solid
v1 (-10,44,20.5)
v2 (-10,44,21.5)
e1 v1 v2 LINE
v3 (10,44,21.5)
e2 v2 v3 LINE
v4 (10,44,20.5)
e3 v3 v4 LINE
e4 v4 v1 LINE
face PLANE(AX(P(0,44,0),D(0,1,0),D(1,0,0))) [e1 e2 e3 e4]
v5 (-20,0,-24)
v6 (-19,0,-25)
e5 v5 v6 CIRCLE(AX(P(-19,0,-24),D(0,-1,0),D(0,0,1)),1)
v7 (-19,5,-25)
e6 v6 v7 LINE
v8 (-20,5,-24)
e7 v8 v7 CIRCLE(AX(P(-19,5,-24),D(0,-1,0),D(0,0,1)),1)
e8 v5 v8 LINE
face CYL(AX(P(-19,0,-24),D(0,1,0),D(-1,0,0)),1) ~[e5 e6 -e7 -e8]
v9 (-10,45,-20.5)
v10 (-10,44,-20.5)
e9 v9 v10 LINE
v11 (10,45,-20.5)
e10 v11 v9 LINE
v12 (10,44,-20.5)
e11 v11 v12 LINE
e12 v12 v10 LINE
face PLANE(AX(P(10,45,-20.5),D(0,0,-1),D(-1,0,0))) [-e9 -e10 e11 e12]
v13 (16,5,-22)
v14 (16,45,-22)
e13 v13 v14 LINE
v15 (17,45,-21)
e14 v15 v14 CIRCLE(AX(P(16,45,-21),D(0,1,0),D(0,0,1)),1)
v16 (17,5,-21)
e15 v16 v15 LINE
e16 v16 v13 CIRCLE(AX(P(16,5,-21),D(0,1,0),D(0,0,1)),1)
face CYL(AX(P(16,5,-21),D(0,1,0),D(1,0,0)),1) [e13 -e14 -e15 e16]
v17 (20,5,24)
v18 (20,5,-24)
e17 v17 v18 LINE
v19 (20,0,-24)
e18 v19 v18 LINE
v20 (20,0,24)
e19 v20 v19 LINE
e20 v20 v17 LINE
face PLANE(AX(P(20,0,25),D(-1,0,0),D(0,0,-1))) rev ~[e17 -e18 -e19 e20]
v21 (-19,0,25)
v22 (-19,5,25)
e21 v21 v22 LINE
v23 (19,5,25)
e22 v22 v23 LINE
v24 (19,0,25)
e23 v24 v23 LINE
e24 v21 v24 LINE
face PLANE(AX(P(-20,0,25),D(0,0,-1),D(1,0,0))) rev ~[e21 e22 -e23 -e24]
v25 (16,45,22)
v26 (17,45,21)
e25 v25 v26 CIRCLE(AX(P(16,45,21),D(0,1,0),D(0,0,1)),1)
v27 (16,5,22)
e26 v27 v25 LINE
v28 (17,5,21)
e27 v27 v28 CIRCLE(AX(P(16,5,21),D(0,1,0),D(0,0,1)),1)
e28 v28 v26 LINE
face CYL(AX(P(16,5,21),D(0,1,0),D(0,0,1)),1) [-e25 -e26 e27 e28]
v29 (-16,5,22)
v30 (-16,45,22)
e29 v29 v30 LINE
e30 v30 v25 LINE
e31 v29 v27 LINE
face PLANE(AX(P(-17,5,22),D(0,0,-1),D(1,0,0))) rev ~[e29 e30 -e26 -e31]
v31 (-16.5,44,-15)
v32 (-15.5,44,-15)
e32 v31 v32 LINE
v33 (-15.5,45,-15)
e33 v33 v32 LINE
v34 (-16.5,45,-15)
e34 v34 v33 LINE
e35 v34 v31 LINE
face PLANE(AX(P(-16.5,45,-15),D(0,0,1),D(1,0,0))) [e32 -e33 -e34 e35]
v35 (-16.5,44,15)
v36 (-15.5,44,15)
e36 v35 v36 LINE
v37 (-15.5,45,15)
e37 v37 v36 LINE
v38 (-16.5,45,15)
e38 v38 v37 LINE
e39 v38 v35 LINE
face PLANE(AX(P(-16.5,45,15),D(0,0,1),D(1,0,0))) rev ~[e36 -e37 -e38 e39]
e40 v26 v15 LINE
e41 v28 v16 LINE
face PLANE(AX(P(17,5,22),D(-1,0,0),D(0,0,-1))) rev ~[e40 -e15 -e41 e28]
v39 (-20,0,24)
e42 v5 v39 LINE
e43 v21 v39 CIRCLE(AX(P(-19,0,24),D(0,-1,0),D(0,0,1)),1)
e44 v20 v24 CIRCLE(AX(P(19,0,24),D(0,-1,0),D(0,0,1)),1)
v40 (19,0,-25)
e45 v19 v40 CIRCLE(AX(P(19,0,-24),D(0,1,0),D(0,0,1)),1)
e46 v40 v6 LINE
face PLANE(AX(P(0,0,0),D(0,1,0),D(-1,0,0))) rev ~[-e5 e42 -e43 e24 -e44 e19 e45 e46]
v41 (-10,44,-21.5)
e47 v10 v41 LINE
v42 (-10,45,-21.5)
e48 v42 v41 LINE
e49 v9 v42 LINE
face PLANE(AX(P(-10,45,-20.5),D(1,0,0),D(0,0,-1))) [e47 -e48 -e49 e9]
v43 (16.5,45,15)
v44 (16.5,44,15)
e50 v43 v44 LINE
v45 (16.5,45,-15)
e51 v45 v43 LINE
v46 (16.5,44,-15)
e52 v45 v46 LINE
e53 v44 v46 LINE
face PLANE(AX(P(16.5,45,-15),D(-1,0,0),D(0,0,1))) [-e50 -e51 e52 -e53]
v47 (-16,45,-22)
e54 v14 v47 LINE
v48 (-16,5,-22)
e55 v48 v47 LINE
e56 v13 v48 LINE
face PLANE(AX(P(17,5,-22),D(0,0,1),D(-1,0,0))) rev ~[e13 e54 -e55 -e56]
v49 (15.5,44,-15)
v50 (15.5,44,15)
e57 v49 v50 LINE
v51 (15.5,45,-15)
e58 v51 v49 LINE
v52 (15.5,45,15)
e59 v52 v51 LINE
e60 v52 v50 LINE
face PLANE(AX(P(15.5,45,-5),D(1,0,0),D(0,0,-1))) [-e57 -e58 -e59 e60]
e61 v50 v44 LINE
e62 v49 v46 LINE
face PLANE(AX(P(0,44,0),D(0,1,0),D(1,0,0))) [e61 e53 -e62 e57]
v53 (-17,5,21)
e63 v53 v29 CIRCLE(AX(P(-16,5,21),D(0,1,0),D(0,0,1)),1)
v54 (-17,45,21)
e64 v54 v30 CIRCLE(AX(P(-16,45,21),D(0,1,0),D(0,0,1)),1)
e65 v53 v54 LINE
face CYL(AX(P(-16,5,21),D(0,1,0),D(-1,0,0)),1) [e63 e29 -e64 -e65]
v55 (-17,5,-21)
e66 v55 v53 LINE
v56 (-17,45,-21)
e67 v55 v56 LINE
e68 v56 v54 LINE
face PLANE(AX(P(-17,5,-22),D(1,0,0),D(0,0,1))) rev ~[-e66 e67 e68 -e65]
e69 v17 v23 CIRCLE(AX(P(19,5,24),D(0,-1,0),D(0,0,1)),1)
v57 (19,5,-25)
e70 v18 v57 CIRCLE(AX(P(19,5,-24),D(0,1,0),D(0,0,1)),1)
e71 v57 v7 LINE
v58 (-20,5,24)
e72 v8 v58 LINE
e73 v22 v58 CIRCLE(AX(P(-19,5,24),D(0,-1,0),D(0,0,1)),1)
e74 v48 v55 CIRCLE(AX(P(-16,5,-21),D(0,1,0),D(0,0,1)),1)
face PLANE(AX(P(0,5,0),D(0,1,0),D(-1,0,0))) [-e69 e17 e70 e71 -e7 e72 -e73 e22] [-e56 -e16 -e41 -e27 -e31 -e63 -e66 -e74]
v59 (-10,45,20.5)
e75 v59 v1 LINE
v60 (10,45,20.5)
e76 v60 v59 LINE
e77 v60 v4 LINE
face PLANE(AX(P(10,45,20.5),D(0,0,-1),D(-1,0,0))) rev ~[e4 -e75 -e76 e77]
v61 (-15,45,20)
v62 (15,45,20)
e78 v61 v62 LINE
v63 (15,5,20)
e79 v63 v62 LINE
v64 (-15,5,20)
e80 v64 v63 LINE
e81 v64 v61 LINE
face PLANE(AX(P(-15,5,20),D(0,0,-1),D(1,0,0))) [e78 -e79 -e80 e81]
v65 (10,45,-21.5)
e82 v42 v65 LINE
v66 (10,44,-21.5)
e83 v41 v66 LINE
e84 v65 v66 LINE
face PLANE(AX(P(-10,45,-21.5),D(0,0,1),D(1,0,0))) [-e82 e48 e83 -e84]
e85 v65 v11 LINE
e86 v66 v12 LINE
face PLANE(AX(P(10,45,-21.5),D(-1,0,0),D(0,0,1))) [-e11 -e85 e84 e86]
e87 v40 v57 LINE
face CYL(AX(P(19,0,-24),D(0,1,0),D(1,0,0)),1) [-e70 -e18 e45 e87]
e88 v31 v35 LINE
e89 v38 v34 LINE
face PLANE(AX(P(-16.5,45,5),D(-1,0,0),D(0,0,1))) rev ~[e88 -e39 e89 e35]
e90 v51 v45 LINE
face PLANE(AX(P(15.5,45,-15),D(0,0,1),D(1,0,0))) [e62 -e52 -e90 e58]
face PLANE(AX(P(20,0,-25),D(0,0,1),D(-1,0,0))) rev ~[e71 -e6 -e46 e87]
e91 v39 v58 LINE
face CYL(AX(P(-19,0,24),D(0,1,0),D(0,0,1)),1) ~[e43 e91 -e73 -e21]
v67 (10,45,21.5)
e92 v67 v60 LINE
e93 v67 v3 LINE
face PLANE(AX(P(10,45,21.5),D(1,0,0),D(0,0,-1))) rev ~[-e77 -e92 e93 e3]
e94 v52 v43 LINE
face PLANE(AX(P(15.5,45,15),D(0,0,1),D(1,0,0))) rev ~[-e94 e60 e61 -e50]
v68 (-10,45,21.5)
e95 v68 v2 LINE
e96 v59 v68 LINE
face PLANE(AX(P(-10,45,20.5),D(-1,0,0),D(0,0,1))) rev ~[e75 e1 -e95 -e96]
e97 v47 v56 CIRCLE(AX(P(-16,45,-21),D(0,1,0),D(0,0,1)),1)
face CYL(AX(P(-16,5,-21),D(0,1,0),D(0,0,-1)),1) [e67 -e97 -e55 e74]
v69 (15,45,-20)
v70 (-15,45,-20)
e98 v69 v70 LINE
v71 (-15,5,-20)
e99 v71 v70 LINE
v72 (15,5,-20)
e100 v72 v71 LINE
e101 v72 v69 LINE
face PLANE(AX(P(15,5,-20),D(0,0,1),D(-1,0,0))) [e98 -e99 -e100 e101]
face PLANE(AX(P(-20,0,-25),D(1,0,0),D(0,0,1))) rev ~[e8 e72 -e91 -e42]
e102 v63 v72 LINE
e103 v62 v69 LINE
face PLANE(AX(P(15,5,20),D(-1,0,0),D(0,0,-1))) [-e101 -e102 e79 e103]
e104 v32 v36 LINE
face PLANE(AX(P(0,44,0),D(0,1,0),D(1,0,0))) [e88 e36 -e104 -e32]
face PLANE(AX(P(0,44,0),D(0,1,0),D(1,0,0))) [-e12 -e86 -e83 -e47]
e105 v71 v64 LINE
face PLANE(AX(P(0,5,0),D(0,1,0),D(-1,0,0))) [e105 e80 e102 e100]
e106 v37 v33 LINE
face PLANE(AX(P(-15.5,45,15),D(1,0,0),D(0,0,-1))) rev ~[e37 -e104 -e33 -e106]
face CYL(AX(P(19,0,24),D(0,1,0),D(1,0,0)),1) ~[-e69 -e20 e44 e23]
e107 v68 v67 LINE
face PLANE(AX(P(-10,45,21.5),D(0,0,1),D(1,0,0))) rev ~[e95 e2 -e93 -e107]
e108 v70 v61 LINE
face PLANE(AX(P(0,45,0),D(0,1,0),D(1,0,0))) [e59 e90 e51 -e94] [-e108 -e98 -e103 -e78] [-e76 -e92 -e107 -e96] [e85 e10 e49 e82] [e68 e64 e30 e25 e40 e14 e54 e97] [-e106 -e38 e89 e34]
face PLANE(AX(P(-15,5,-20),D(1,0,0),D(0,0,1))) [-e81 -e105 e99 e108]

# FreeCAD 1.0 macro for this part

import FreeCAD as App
import Part
import Sketcher
from FreeCAD import Vector
Q = App.Units.Quantity


def edges_at(feature, points):
    """Names of the edges that pass closest to the given points."""
    edges = feature.Shape.Edges
    near = lambda p: min(range(len(edges)), key=lambda i: edges[i].distToShape(Part.Vertex(*p))[0])
    return sorted({f"Edge{near(p) + 1}" for p in points})


def add_polygon(sketch, points):
    """Adds a closed chain of lines whose ends are joined by coincident constraints."""
    first, n = sketch.GeometryCount, len(points)
    for a, b in zip(points, points[1:] + points[:1]):
        sketch.addGeometry(Part.LineSegment(App.Vector(*a, 0), App.Vector(*b, 0)), False)
    for i in range(n):
        sketch.addConstraint(Sketcher.Constraint("Coincident", first + i, 2, first + (i + 1) % n, 1))

doc = App.newDocument("Part")
body = doc.addObject("PartDesign::Body", "Body")

# Sketch on XZ plane
sketch1 = body.newObject("Sketcher::SketchObject", "Sketch")
sketch1.AttachmentSupport = (doc.getObject("XZ_Plane"), [""])
sketch1.MapMode = "FlatFace"
add_polygon(sketch1, [(20, 25), (20, -25), (-20, -25), (-20, 25)])  # lines 0-3
sketch1.addConstraint([
    Sketcher.Constraint("Vertical", 0),
    Sketcher.Constraint("Horizontal", 1),
    Sketcher.Constraint("Vertical", 2),
    Sketcher.Constraint("Horizontal", 3),
    Sketcher.Constraint("Symmetric", 0, 2, 2, 2, -1, 1),
    Sketcher.Constraint("DistanceX", 1, 2, 1, 1, Q("40 mm")),
    Sketcher.Constraint("DistanceY", 0, 2, 0, 1, Q("50 mm")),
])
pad1 = body.newObject("PartDesign::Pad", "Pad")
pad1.Profile = sketch1
pad1.Length = 5
pad1.Reversed = True

# Sketch on XZ plane
sketch2 = body.newObject("Sketcher::SketchObject", "Sketch001")
sketch2.AttachmentSupport = (doc.getObject("XZ_Plane"), [""])
sketch2.MapMode = "FlatFace"
sketch2.AttachmentOffset = App.Placement(Vector(0, 0, -5), App.Rotation())
add_polygon(sketch2, [(17, 22), (17, -22), (-17, -22), (-17, 22)])  # lines 0-3
add_polygon(sketch2, [(-15, -20), (15, -20), (15, 20), (-15, 20)])  # lines 4-7
sketch2.addConstraint([
    Sketcher.Constraint("Vertical", 0),
    Sketcher.Constraint("Horizontal", 1),
    Sketcher.Constraint("Vertical", 2),
    Sketcher.Constraint("Horizontal", 3),
    Sketcher.Constraint("Horizontal", 4),
    Sketcher.Constraint("Vertical", 5),
    Sketcher.Constraint("Horizontal", 6),
    Sketcher.Constraint("Vertical", 7),
    Sketcher.Constraint("Symmetric", 0, 2, 2, 2, -1, 1),
    Sketcher.Constraint("Symmetric", 4, 2, 6, 2, -1, 1),
    Sketcher.Constraint("DistanceX", 4, 2, 0, 2, Q("2 mm")),
    Sketcher.Constraint("DistanceY", 0, 2, 4, 2, Q("2 mm")),
    Sketcher.Constraint("DistanceX", 1, 2, 1, 1, Q("34 mm")),
    Sketcher.Constraint("DistanceY", 0, 2, 0, 1, Q("44 mm")),
])
pad2 = body.newObject("PartDesign::Pad", "Pad001")
pad2.Profile = sketch2
pad2.Length = 40
pad2.Reversed = True
doc.recompute()

fillet = body.newObject("PartDesign::Fillet", "Fillet")
fillet.Base = (pad2, edges_at(pad2, [(20, 2.5, 25)]))
fillet.Radius = 1
doc.recompute()

fillet2 = body.newObject("PartDesign::Fillet", "Fillet001")
fillet2.Base = (fillet, edges_at(fillet, [(20, 2.5, -25)]))
fillet2.Radius = 1
doc.recompute()

fillet3 = body.newObject("PartDesign::Fillet", "Fillet002")
fillet3.Base = (fillet2, edges_at(fillet2, [(-20, 2.5, 25)]))
fillet3.Radius = 1
doc.recompute()

fillet4 = body.newObject("PartDesign::Fillet", "Fillet003")
fillet4.Base = (fillet3, edges_at(fillet3, [(-20, 2.5, -25)]))
fillet4.Radius = 1
doc.recompute()

fillet5 = body.newObject("PartDesign::Fillet", "Fillet004")
fillet5.Base = (fillet4, edges_at(fillet4, [(-17, 25, 22)]))
fillet5.Radius = 1
doc.recompute()

fillet6 = body.newObject("PartDesign::Fillet", "Fillet005")
fillet6.Base = (fillet5, edges_at(fillet5, [(17, 25, 22)]))
fillet6.Radius = 1
doc.recompute()

fillet7 = body.newObject("PartDesign::Fillet", "Fillet006")
fillet7.Base = (fillet6, edges_at(fillet6, [(17, 25, -22)]))
fillet7.Radius = 1
doc.recompute()

fillet8 = body.newObject("PartDesign::Fillet", "Fillet007")
fillet8.Base = (fillet7, edges_at(fillet7, [(-17, 25, -22)]))
fillet8.Radius = 1

# Sketch on XZ plane
sketch3 = body.newObject("Sketcher::SketchObject", "Sketch002")
sketch3.AttachmentSupport = (doc.getObject("XZ_Plane"), [""])
sketch3.MapMode = "FlatFace"
sketch3.AttachmentOffset = App.Placement(Vector(0, 0, -45), App.Rotation())
add_polygon(sketch3, [(-16.5, 15), (-15.5, 15), (-15.5, -15), (-16.5, -15)])  # lines 0-3
add_polygon(sketch3, [(10, -21.5), (-10, -21.5), (-10, -20.5), (10, -20.5)])  # lines 4-7
add_polygon(sketch3, [(16.5, -15), (15.5, -15), (15.5, 15), (16.5, 15)])  # lines 8-11
add_polygon(sketch3, [(10, 21.5), (10, 20.5), (-10, 20.5), (-10, 21.5)])  # lines 12-15
sketch3.addConstraint([
    Sketcher.Constraint("Horizontal", 0),
    Sketcher.Constraint("Vertical", 1),
    Sketcher.Constraint("Horizontal", 2),
    Sketcher.Constraint("Vertical", 3),
    Sketcher.Constraint("Horizontal", 4),
    Sketcher.Constraint("Vertical", 5),
    Sketcher.Constraint("Horizontal", 6),
    Sketcher.Constraint("Vertical", 7),
    Sketcher.Constraint("Horizontal", 8),
    Sketcher.Constraint("Vertical", 9),
    Sketcher.Constraint("Horizontal", 10),
    Sketcher.Constraint("Vertical", 11),
    Sketcher.Constraint("Vertical", 12),
    Sketcher.Constraint("Horizontal", 13),
    Sketcher.Constraint("Vertical", 14),
    Sketcher.Constraint("Horizontal", 15),
    Sketcher.Constraint("Symmetric", 0, 2, 8, 2, -1, 1),
    Sketcher.Constraint("Symmetric", 2, 2, 10, 2, -1, 1),
    Sketcher.Constraint("Symmetric", 5, 2, 12, 2, -1, 1),
    Sketcher.Constraint("Symmetric", 7, 2, 14, 2, -1, 1),
    Sketcher.Constraint("Horizontal", 2, 2, 8, 2),
    Sketcher.Constraint("Vertical", 7, 2, 12, 2),
    Sketcher.Constraint("Equal", 10, 5),
    Sketcher.Constraint("DistanceX", 0, 1, 0, 2, Q("1 mm")),
    Sketcher.Constraint("DistanceX", 4, 2, 4, 1, Q("20 mm")),
    Sketcher.Constraint("DistanceY", 1, 2, 1, 1, Q("30 mm")),
    Sketcher.Constraint("DistanceX", 1, 2, 8, 2, Q("31 mm")),
    Sketcher.Constraint("DistanceY", 4, 2, -1, 1, Q("21.5 mm")),
])
pocket1 = body.newObject("PartDesign::Pocket", "Pocket")
pocket1.Profile = sketch3
pocket1.Length = 1
pocket1.Reversed = True

doc.recompute()
